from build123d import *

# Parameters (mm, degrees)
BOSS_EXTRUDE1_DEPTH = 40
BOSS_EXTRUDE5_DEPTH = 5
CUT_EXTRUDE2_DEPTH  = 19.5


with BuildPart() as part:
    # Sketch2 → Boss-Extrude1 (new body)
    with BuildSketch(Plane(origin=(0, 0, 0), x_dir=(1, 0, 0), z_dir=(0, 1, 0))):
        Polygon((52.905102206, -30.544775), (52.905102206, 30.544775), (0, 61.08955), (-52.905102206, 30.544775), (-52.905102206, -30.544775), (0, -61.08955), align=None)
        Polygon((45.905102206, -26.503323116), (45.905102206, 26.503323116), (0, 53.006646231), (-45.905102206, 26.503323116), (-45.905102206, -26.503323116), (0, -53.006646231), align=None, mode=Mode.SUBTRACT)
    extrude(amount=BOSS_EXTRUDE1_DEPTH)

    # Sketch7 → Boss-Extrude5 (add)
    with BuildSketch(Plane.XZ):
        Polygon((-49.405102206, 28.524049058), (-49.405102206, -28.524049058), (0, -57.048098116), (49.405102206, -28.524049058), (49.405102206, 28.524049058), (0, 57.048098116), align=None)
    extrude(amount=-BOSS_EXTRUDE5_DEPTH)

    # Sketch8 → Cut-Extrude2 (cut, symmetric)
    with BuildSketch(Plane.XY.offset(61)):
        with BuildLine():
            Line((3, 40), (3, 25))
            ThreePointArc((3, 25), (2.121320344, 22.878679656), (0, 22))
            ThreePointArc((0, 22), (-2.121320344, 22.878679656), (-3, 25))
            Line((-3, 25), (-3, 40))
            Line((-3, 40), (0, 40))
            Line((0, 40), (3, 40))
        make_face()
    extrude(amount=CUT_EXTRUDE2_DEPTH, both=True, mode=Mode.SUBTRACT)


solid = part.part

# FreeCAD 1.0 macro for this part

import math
import FreeCAD as App
import Part
import Sketcher
from FreeCAD import Vector
Q = App.Units.Quantity

doc = App.newDocument("Part")
body = doc.addObject("PartDesign::Body", "Body")

sketch1 = body.newObject("Sketcher::SketchObject", "Sketch")
sketch1.AttachmentSupport = (doc.getObject("XZ_Plane"), [""])
sketch1.MapMode = "FlatFace"
sketch1.addGeometry([
    Part.LineSegment(Vector(52.905102, 30.544775, 0), Vector(52.905102, -30.544775, 0)),
    Part.LineSegment(Vector(52.905102, -30.544775, 0), Vector(0, -61.08955, 0)),
    Part.LineSegment(Vector(0, -61.08955, 0), Vector(-52.905102, -30.544775, 0)),
    Part.LineSegment(Vector(-52.905102, -30.544775, 0), Vector(-52.905102, 30.544775, 0)),
    Part.LineSegment(Vector(-52.905102, 30.544775, 0), Vector(0, 61.08955, 0)),
    Part.LineSegment(Vector(0, 61.08955, 0), Vector(52.905102, 30.544775, 0)),
    Part.LineSegment(Vector(45.905102, -26.503323, 0), Vector(45.905102, 26.503323, 0)),
    Part.LineSegment(Vector(45.905102, 26.503323, 0), Vector(0, 53.006646, 0)),
    Part.LineSegment(Vector(0, 53.006646, 0), Vector(-45.905102, 26.503323, 0)),
    Part.LineSegment(Vector(-45.905102, 26.503323, 0), Vector(-45.905102, -26.503323, 0)),
    Part.LineSegment(Vector(-45.905102, -26.503323, 0), Vector(0, -53.006646, 0)),
    Part.LineSegment(Vector(0, -53.006646, 0), Vector(45.905102, -26.503323, 0)),
], False)
sketch1.addConstraint([
    Sketcher.Constraint("Coincident", 0, 2, 1, 1),
    Sketcher.Constraint("Coincident", 1, 2, 2, 1),
    Sketcher.Constraint("Coincident", 2, 2, 3, 1),
    Sketcher.Constraint("Coincident", 3, 2, 4, 1),
    Sketcher.Constraint("Coincident", 4, 2, 5, 1),
    Sketcher.Constraint("Coincident", 5, 2, 0, 1),
    Sketcher.Constraint("Coincident", 6, 2, 7, 1),
    Sketcher.Constraint("Coincident", 7, 2, 8, 1),
    Sketcher.Constraint("Coincident", 8, 2, 9, 1),
    Sketcher.Constraint("Coincident", 9, 2, 10, 1),
    Sketcher.Constraint("Coincident", 10, 2, 11, 1),
    Sketcher.Constraint("Coincident", 11, 2, 6, 1),
    Sketcher.Constraint("Vertical", 0),
    Sketcher.Constraint("Vertical", 3),
    Sketcher.Constraint("Vertical", 6),
    Sketcher.Constraint("Vertical", 9),
    Sketcher.Constraint("Symmetric", 0, 2, 3, 2, -1, 1),
    Sketcher.Constraint("Symmetric", 1, 2, 4, 2, -1, 1),
    Sketcher.Constraint("Symmetric", 6, 2, 9, 2, -1, 1),
    Sketcher.Constraint("Symmetric", 7, 2, 10, 2, -1, 1),
    Sketcher.Constraint("PointOnObject", 1, 2, -2),
    Sketcher.Constraint("PointOnObject", 7, 2, -2),
    Sketcher.Constraint("Parallel", 2, 5),
    Sketcher.Constraint("Parallel", 5, 7),
    Sketcher.Constraint("Parallel", 4, 8),
    Sketcher.Constraint("Parallel", 8, 11),
    Sketcher.Constraint("Horizontal", 0, 2, 2, 2),
    Sketcher.Constraint("Angle", 1, Q("-150 deg")),
    Sketcher.Constraint("DistanceX", 6, 2, 5, 2, Q("7 mm")),
    Sketcher.Constraint("DistanceY", 0, 2, 0, 1, Q("61.08955 mm")),
    Sketcher.Constraint("DistanceY", 1, 2, 4, 2, Q("122.1791 mm")),
    Sketcher.Constraint("DistanceY", 0, 2, 6, 2, Q("57.048098 mm")),
])
pad1 = body.newObject("PartDesign::Pad", "Pad")
pad1.Profile = sketch1
pad1.Length = 40
pad1.Reversed = True

sketch2 = body.newObject("Sketcher::SketchObject", "Sketch001")
sketch2.AttachmentSupport = (doc.getObject("XZ_Plane"), [""])
sketch2.MapMode = "FlatFace"
sketch2.addGeometry([
    Part.LineSegment(Vector(-49.405102, 28.524049, 0), Vector(-49.405102, -28.524049, 0)),
    Part.LineSegment(Vector(-49.405102, -28.524049, 0), Vector(0, -57.048098, 0)),
    Part.LineSegment(Vector(0, -57.048098, 0), Vector(49.405102, -28.524049, 0)),
    Part.LineSegment(Vector(49.405102, -28.524049, 0), Vector(49.405102, 28.524049, 0)),
    Part.LineSegment(Vector(49.405102, 28.524049, 0), Vector(0, 57.048098, 0)),
    Part.LineSegment(Vector(0, 57.048098, 0), Vector(-49.405102, 28.524049, 0)),
], False)
sketch2.addConstraint([
    Sketcher.Constraint("Coincident", 0, 2, 1, 1),
    Sketcher.Constraint("Coincident", 1, 2, 2, 1),
    Sketcher.Constraint("Coincident", 2, 2, 3, 1),
    Sketcher.Constraint("Coincident", 3, 2, 4, 1),
    Sketcher.Constraint("Coincident", 4, 2, 5, 1),
    Sketcher.Constraint("Coincident", 5, 2, 0, 1),
    Sketcher.Constraint("Vertical", 0),
    Sketcher.Constraint("Vertical", 3),
    Sketcher.Constraint("Symmetric", 0, 2, 3, 2, -1, 1),
    Sketcher.Constraint("Symmetric", 1, 2, 4, 2, -1, 1),
    Sketcher.Constraint("PointOnObject", 1, 2, -2),
    Sketcher.Constraint("Parallel", 2, 5),
    Sketcher.Constraint("Horizontal", 0, 2, 2, 2),
    Sketcher.Constraint("Angle", 1, Q("-30 deg")),
    Sketcher.Constraint("DistanceY", 0, 2, 0, 1, Q("57.048098 mm")),
    Sketcher.Constraint("Distance", 1, Q("57.048098 mm")),
])
pad2 = body.newObject("PartDesign::Pad", "Pad001")
pad2.Profile = sketch2
pad2.Length = 5
pad2.Reversed = True

sketch3 = body.newObject("Sketcher::SketchObject", "Sketch002")
sketch3.AttachmentSupport = (doc.getObject("XY_Plane"), [""])
sketch3.MapMode = "FlatFace"
sketch3.AttachmentOffset = App.Placement(Vector(0, 0, 61), App.Rotation())
sketch3.addGeometry([
    Part.LineSegment(Vector(3, 25, 0), Vector(3, 40, 0)),
    Part.LineSegment(Vector(3, 40, 0), Vector(-3, 40, 0)),
    Part.LineSegment(Vector(-3, 40, 0), Vector(-3, 25, 0)),
    Part.ArcOfCircle(Part.Circle(Vector(0, 25, 0), Vector(0, 0, 1), 3), math.radians(180), math.radians(270)),
    Part.ArcOfCircle(Part.Circle(Vector(0, 25, 0), Vector(0, 0, 1), 3), math.radians(-90), math.radians(0)),
], False)
sketch3.addConstraint([
    Sketcher.Constraint("Coincident", 0, 2, 1, 1),
    Sketcher.Constraint("Coincident", 1, 2, 2, 1),
    Sketcher.Constraint("Tangent", 2, 2, 3, 1),
    Sketcher.Constraint("Tangent", 3, 2, 4, 1),
    Sketcher.Constraint("Tangent", 4, 2, 0, 1),
    Sketcher.Constraint("Vertical", 0),
    Sketcher.Constraint("Horizontal", 1),
    Sketcher.Constraint("Vertical", 2),
    Sketcher.Constraint("Equal", 3, 4),
    Sketcher.Constraint("PointOnObject", 3, 3, -2),
    Sketcher.Constraint("PointOnObject", 3, 2, -2),
    Sketcher.Constraint("Radius", 3, Q("3 mm")),
    Sketcher.Constraint("DistanceY", 0, 1, 0, 2, Q("15 mm")),
    Sketcher.Constraint("DistanceY", -1, 1, 3, 3, Q("25 mm")),
])
pocket1 = body.newObject("PartDesign::Pocket", "Pocket")
pocket1.Profile = sketch3
pocket1.Length = 39
pocket1.Midplane = True

doc.recompute()
